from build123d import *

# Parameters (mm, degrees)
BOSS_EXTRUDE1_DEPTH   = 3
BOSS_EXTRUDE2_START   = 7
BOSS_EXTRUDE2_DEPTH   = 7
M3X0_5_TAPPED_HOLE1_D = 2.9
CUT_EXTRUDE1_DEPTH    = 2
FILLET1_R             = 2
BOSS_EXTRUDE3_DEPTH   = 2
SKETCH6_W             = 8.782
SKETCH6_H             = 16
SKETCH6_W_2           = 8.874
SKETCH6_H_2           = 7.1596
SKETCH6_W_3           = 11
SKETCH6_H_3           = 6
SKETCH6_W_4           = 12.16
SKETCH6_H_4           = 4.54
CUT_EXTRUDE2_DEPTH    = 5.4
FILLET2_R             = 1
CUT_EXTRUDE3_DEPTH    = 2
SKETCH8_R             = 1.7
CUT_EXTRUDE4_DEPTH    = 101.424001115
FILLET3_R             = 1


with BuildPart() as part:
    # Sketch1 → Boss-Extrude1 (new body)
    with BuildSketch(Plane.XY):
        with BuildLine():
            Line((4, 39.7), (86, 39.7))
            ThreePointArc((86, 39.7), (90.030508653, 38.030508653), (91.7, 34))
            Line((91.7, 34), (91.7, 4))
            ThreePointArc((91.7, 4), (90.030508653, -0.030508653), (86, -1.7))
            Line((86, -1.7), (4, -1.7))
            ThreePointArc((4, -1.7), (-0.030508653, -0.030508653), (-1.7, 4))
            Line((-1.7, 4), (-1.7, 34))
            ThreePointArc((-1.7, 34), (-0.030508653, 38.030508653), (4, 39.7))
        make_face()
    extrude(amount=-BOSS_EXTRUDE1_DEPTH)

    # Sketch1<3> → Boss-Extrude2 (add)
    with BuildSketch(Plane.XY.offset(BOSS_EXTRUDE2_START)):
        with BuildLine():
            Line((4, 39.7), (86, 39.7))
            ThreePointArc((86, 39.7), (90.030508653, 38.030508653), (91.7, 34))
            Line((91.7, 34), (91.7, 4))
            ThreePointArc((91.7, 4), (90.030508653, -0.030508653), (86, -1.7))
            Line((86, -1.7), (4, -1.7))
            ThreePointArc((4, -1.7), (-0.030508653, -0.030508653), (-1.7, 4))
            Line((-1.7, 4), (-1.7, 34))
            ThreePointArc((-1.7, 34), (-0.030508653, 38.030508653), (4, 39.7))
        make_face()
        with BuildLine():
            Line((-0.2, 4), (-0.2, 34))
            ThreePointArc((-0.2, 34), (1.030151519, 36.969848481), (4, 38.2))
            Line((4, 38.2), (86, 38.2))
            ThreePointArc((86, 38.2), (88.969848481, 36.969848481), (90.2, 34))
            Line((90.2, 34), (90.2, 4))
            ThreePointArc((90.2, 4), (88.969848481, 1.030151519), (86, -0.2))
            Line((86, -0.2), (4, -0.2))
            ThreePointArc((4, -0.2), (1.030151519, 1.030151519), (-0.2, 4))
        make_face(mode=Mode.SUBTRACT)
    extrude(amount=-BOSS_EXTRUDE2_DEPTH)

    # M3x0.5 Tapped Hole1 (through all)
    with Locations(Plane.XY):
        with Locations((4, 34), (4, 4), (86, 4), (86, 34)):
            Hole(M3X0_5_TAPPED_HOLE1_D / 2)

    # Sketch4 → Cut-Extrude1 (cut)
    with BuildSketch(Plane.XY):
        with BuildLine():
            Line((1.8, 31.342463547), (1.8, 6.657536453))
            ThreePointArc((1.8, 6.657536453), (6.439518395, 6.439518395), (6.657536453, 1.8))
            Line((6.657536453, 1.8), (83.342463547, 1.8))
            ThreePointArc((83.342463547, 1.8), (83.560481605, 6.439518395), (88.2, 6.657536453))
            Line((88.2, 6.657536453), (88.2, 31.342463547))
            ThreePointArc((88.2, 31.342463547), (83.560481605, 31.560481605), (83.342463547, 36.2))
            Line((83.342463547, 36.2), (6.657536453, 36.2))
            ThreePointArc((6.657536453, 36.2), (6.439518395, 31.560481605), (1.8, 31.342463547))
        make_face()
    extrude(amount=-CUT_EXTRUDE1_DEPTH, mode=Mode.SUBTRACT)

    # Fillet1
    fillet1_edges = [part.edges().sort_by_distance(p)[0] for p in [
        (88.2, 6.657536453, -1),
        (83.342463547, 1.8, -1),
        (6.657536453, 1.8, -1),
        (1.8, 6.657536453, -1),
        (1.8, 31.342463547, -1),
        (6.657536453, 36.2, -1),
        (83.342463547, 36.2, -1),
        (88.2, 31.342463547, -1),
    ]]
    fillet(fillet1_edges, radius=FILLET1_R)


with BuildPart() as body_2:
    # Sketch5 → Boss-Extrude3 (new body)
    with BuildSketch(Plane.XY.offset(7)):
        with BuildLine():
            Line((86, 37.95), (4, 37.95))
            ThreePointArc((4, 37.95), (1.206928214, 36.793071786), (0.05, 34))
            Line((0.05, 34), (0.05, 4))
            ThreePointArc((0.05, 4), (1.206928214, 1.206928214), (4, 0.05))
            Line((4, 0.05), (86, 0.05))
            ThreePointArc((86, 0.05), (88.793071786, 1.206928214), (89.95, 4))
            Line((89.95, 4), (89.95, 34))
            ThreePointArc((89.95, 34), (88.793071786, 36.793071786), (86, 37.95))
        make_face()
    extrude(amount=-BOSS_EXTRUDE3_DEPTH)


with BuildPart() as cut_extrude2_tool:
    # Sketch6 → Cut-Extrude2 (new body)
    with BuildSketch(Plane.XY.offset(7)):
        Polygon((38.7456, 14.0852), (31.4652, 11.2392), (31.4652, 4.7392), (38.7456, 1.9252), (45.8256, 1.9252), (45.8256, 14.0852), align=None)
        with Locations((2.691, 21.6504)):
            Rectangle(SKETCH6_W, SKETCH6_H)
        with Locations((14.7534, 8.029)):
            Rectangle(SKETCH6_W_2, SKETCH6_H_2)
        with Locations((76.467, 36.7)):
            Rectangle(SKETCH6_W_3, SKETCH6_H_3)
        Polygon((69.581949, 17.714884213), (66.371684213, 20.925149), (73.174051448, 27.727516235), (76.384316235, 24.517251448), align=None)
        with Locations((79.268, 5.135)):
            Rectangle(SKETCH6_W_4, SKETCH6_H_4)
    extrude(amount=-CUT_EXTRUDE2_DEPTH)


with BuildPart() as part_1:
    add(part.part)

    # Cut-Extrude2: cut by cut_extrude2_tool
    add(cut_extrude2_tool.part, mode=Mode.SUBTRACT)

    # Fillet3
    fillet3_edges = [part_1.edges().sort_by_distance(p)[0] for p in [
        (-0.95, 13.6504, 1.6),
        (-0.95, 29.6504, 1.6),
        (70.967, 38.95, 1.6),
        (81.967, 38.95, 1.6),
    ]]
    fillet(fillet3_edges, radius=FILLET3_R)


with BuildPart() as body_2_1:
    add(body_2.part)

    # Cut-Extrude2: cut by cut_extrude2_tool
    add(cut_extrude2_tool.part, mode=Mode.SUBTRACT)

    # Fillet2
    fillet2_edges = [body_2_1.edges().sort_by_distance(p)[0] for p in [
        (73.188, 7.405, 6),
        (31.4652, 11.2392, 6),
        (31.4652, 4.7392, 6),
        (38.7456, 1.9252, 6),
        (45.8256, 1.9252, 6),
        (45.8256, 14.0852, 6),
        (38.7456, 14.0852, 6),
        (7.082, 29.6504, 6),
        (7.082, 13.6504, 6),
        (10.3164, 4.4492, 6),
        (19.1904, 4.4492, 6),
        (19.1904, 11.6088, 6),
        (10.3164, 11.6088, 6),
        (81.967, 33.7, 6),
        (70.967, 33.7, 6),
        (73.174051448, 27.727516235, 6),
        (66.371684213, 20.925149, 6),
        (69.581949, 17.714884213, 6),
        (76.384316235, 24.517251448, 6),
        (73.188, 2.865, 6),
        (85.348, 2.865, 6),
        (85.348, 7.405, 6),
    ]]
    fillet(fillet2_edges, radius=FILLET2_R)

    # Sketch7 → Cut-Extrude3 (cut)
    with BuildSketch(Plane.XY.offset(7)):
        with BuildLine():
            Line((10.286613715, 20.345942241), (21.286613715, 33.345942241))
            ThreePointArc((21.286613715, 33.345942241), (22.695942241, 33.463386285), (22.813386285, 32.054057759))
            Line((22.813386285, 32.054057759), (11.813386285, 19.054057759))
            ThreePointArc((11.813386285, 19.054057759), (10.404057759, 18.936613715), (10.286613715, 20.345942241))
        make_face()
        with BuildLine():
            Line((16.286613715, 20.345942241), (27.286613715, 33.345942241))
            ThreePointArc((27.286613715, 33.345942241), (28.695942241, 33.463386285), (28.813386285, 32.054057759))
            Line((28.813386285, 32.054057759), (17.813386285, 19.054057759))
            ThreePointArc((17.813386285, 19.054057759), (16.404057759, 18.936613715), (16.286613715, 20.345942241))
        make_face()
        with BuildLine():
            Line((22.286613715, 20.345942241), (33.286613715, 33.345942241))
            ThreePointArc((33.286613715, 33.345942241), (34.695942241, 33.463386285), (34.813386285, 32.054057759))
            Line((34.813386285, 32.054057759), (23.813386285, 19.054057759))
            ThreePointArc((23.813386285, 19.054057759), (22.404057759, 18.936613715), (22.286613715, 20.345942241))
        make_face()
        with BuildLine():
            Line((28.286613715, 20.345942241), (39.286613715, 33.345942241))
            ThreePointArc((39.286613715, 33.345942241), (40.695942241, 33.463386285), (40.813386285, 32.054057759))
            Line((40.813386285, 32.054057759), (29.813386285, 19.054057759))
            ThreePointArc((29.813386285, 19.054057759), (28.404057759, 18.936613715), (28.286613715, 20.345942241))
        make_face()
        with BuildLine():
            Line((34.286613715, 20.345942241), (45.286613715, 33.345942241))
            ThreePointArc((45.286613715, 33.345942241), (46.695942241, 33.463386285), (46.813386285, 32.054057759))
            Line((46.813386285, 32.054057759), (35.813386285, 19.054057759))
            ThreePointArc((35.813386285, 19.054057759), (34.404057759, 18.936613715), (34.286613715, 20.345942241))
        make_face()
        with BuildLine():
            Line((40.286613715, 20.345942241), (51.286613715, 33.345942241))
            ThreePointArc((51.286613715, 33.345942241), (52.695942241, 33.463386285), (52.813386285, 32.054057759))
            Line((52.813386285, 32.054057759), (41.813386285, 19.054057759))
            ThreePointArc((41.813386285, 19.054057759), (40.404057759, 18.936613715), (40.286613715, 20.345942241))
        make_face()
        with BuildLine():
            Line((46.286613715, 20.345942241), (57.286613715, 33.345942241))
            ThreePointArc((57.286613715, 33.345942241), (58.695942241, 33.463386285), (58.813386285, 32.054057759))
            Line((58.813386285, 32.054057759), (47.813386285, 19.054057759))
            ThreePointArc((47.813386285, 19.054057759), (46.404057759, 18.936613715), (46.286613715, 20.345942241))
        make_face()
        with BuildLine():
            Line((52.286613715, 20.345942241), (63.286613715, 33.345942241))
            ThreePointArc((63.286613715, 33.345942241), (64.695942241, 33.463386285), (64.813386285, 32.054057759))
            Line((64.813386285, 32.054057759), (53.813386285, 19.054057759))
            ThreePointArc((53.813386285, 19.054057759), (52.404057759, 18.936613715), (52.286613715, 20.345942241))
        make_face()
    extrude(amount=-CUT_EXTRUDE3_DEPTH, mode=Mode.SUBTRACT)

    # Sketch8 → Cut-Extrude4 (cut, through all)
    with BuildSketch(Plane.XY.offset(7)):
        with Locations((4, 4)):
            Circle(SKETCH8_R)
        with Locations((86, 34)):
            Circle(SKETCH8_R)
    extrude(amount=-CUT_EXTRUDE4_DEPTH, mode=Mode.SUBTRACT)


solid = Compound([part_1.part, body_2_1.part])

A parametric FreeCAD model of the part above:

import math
import FreeCAD as App
import Part
import Sketcher

V = App.Vector
Q = App.Units.Quantity


def edges_at(feature, points):
    """Names of the edges that pass closest to the given points."""
    edges = feature.Shape.Edges
    near = lambda p: min(range(len(edges)), key=lambda i: edges[i].distToShape(Part.Vertex(*p))[0])
    return sorted({f"Edge{near(p) + 1}" for p in points})

doc = App.newDocument("Part")
params = doc.addObject("Spreadsheet::Sheet", "Params")
for row, (alias, value) in enumerate([
    ("sketch1_radius", "5.7 mm"),
    ("sketch1_width", "82 mm"),
    ("sketch1_height", "30 mm"),
    ("pad1_length", "3 mm"),
    ("sketch2_radius", "5.7 mm"),
    ("sketch2_radius2", "4.2 mm"),
    ("sketch2_width", "82 mm"),
    ("sketch2_height", "30 mm"),
    ("pad2_length", "7 mm"),
    ("sketch3_diameter", "2.9 mm"),
    ("hole_diameter", "2.9 mm"),
    ("sketch4_radius", "3.45 mm"),
    ("pocket1_length", "2 mm"),
    ("fillet_radius", "2 mm"),
    ("sketch5_width", "82 mm"),
    ("sketch5_height", "30 mm"),
    ("sketch5_radius", "3.95 mm"),
    ("pad3_length", "2 mm"),
    ("sketch6_width", "11 mm"),
    ("sketch6_height", "16 mm"),
    ("sketch6_height2", "6 mm"),
    ("sketch6_height3", "6.5 mm"),
    ("sketch6_width2", "7.08 mm"),
    ("pad4_length", "5.4 mm"),
    ("fillet2_radius", "1 mm"),
    ("fillet3_radius", "1 mm"),
    ("sketch7_radius", "1 mm"),
    ("pocket2_length", "2 mm"),
    ("sketch8_diameter", "3.4 mm"),
], start=1):
    params.set(f"A{row}", alias)
    params.set(f"B{row}", "=" + value)
    params.setAlias(f"B{row}", alias)

body = doc.addObject("PartDesign::Body", "Body")

# Sketch on XY plane
sketch1 = body.newObject("Sketcher::SketchObject", "Sketch")
sketch1.AttachmentSupport = (doc.getObject("XY_Plane"), [""])
sketch1.MapMode = "FlatFace"
sketch1.addGeometry([
    Part.LineSegment(V(86, 40, 0), V(4, 40, 0)),  # 0
    Part.ArcOfCircle(Part.Circle(V(4, 34, 0), V(0, 0, 1), 6), math.radians(90), math.radians(180)),  # 1
    Part.LineSegment(V(-2, 34, 0), V(-2, 4, 0)),  # 2
    Part.ArcOfCircle(Part.Circle(V(4, 4, 0), V(0, 0, 1), 6), math.radians(180), math.radians(270)),  # 3
    Part.LineSegment(V(4, -2, 0), V(86, -2, 0)),  # 4
    Part.ArcOfCircle(Part.Circle(V(86, 4, 0), V(0, 0, 1), 6), math.radians(-90), math.radians(0)),  # 5
    Part.LineSegment(V(92, 4, 0), V(92, 34, 0)),  # 6
    Part.ArcOfCircle(Part.Circle(V(86, 34, 0), V(0, 0, 1), 6), math.radians(0), math.radians(90)),  # 7
], False)
sketch1.addConstraint([
    Sketcher.Constraint("Tangent", 0, 2, 1, 1),
    Sketcher.Constraint("Tangent", 1, 2, 2, 1),
    Sketcher.Constraint("Tangent", 2, 2, 3, 1),
    Sketcher.Constraint("Tangent", 3, 2, 4, 1),
    Sketcher.Constraint("Tangent", 4, 2, 5, 1),
    Sketcher.Constraint("Tangent", 5, 2, 6, 1),
    Sketcher.Constraint("Tangent", 6, 2, 7, 1),
    Sketcher.Constraint("Tangent", 7, 2, 0, 1),
    Sketcher.Constraint("Horizontal", 0),
    Sketcher.Constraint("Vertical", 2),
    Sketcher.Constraint("Horizontal", 4),
    Sketcher.Constraint("Vertical", 6),
    Sketcher.Constraint("Equal", 1, 3),
    Sketcher.Constraint("Equal", 3, 5),
    Sketcher.Constraint("Equal", 5, 7),
    Sketcher.Constraint("Radius", 1, Q("5.7 mm")),
    Sketcher.Constraint("DistanceX", 0, 2, 0, 1, Q("82 mm")),
    Sketcher.Constraint("DistanceY", 2, 2, 2, 1, Q("30 mm")),
    Sketcher.Constraint("DistanceX", -1, 1, 1, 3, Q("4 mm")),
    Sketcher.Constraint("DistanceY", -1, 1, 1, 3, Q("34 mm")),
])
sketch1.setExpression("Constraints[15]", "Params.sketch1_radius")
sketch1.setExpression("Constraints[16]", "Params.sketch1_width")
sketch1.setExpression("Constraints[17]", "Params.sketch1_height")
pad1 = body.newObject("PartDesign::Pad", "Pad")
pad1.Profile = sketch1
pad1.setExpression("Length", "Params.pad1_length")
pad1.Reversed = True

# Sketch on XY plane
sketch2 = body.newObject("Sketcher::SketchObject", "Sketch001")
sketch2.AttachmentSupport = (doc.getObject("XY_Plane"), [""])
sketch2.MapMode = "FlatFace"
sketch2.AttachmentOffset = App.Placement(V(0, 0, 7), App.Rotation())
sketch2.addGeometry([
    Part.LineSegment(V(86, 39.7, 0), V(4, 39.7, 0)),  # 0
    Part.ArcOfCircle(Part.Circle(V(4, 34, 0), V(0, 0, 1), 5.7), math.radians(90), math.radians(180)),  # 1
    Part.LineSegment(V(-1.7, 34, 0), V(-1.7, 4, 0)),  # 2
    Part.ArcOfCircle(Part.Circle(V(4, 4, 0), V(0, 0, 1), 5.7), math.radians(180), math.radians(270)),  # 3
    Part.LineSegment(V(4, -1.7, 0), V(86, -1.7, 0)),  # 4
    Part.ArcOfCircle(Part.Circle(V(86, 4, 0), V(0, 0, 1), 5.7), math.radians(-90), math.radians(0)),  # 5
    Part.LineSegment(V(91.7, 4, 0), V(91.7, 34, 0)),  # 6
    Part.ArcOfCircle(Part.Circle(V(86, 34, 0), V(0, 0, 1), 5.7), math.radians(0), math.radians(90)),  # 7
    Part.LineSegment(V(-0.2, 4, 0), V(-0.2, 34, 0)),  # 8
    Part.ArcOfCircle(Part.Circle(V(4, 34, 0), V(0, 0, 1), 4.2), math.radians(90), math.radians(180)),  # 9
    Part.LineSegment(V(4, 38.2, 0), V(86, 38.2, 0)),  # 10
    Part.ArcOfCircle(Part.Circle(V(86, 34, 0), V(0, 0, 1), 4.2), math.radians(0), math.radians(90)),  # 11
    Part.LineSegment(V(90.2, 34, 0), V(90.2, 4, 0)),  # 12
    Part.ArcOfCircle(Part.Circle(V(86, 4, 0), V(0, 0, 1), 4.2), math.radians(-90), math.radians(0)),  # 13
    Part.LineSegment(V(86, -0.2, 0), V(4, -0.2, 0)),  # 14
    Part.ArcOfCircle(Part.Circle(V(4, 4, 0), V(0, 0, 1), 4.2), math.radians(180), math.radians(270)),  # 15
], False)
sketch2.addConstraint([
    Sketcher.Constraint("Tangent", 0, 2, 1, 1),
    Sketcher.Constraint("Tangent", 1, 2, 2, 1),
    Sketcher.Constraint("Tangent", 2, 2, 3, 1),
    Sketcher.Constraint("Tangent", 3, 2, 4, 1),
    Sketcher.Constraint("Tangent", 4, 2, 5, 1),
    Sketcher.Constraint("Tangent", 5, 2, 6, 1),
    Sketcher.Constraint("Tangent", 6, 2, 7, 1),
    Sketcher.Constraint("Tangent", 7, 2, 0, 1),
    Sketcher.Constraint("Tangent", 8, 2, 9, 2),
    Sketcher.Constraint("Tangent", 9, 1, 10, 1),
    Sketcher.Constraint("Tangent", 10, 2, 11, 2),
    Sketcher.Constraint("Tangent", 11, 1, 12, 1),
    Sketcher.Constraint("Tangent", 12, 2, 13, 2),
    Sketcher.Constraint("Tangent", 13, 1, 14, 1),
    Sketcher.Constraint("Tangent", 14, 2, 15, 2),
    Sketcher.Constraint("Tangent", 15, 1, 8, 1),
    Sketcher.Constraint("Horizontal", 0),
    Sketcher.Constraint("Vertical", 2),
    Sketcher.Constraint("Horizontal", 4),
    Sketcher.Constraint("Vertical", 6),
    Sketcher.Constraint("Vertical", 8),
    Sketcher.Constraint("Horizontal", 10),
    Sketcher.Constraint("Vertical", 12),
    Sketcher.Constraint("Horizontal", 14),
    Sketcher.Constraint("Coincident", 9, 3, 1, 3),
    Sketcher.Constraint("Coincident", 11, 3, 7, 3),
    Sketcher.Constraint("Coincident", 13, 3, 5, 3),
    Sketcher.Constraint("Equal", 1, 3),
    Sketcher.Constraint("Equal", 3, 5),
    Sketcher.Constraint("Equal", 5, 7),
    Sketcher.Constraint("Equal", 13, 15),
    Sketcher.Constraint("Radius", 1, Q("5.7 mm")),
    Sketcher.Constraint("Radius", 9, Q("4.2 mm")),
    Sketcher.Constraint("DistanceX", 0, 2, 0, 1, Q("82 mm")),
    Sketcher.Constraint("DistanceY", 2, 2, 2, 1, Q("30 mm")),
    Sketcher.Constraint("DistanceX", -1, 1, 1, 3, Q("4 mm")),
    Sketcher.Constraint("DistanceY", -1, 1, 1, 3, Q("34 mm")),
])
sketch2.setExpression("Constraints[31]", "Params.sketch2_radius")
sketch2.setExpression("Constraints[32]", "Params.sketch2_radius2")
sketch2.setExpression("Constraints[33]", "Params.sketch2_width")
sketch2.setExpression("Constraints[34]", "Params.sketch2_height")
pad2 = body.newObject("PartDesign::Pad", "Pad001")
pad2.Profile = sketch2
pad2.setExpression("Length", "Params.pad2_length")
pad2.Reversed = True

# Sketch on XY plane
sketch3 = body.newObject("Sketcher::SketchObject", "Sketch002")
sketch3.AttachmentSupport = (doc.getObject("XY_Plane"), [""])
sketch3.MapMode = "FlatFace"
sketch3.addGeometry([
    Part.Circle(V(4, 34, 0), V(0, 0, 1), 1.4),
    Part.Circle(V(4, 4, 0), V(0, 0, 1), 1.4),
    Part.Circle(V(86, 4, 0), V(0, 0, 1), 1.4),
    Part.Circle(V(86, 34, 0), V(0, 0, 1), 1.4),
], False)
sketch3.addConstraint([
    Sketcher.Constraint("Equal", 0, 1),
    Sketcher.Constraint("Equal", 1, 2),
    Sketcher.Constraint("Equal", 2, 3),
    Sketcher.Constraint("Horizontal", 1, 3, 2, 3),
    Sketcher.Constraint("Horizontal", 0, 3, 3, 3),
    Sketcher.Constraint("Vertical", 0, 3, 1, 3),
    Sketcher.Constraint("Vertical", 2, 3, 3, 3),
    Sketcher.Constraint("Diameter", 0, Q("2.9 mm")),
    Sketcher.Constraint("DistanceX", -1, 1, 0, 3, Q("4 mm")),
    Sketcher.Constraint("DistanceY", -1, 1, 0, 3, Q("34 mm")),
    Sketcher.Constraint("DistanceY", -1, 1, 1, 3, Q("4 mm")),
    Sketcher.Constraint("DistanceX", -1, 1, 2, 3, Q("86 mm")),
])
sketch3.setExpression("Constraints[7]", "Params.sketch3_diameter")
doc.recompute()
hole = body.newObject("PartDesign::Hole", "Hole")
hole.Profile = sketch3
hole.ThreadType = "None"
hole.setExpression("Diameter", "Params.hole_diameter")
hole.DepthType = "ThroughAll"

# Sketch on XY plane
sketch4 = body.newObject("Sketcher::SketchObject", "Sketch003")
sketch4.AttachmentSupport = (doc.getObject("XY_Plane"), [""])
sketch4.MapMode = "FlatFace"
sketch4.addGeometry([
    Part.LineSegment(V(1.8, 31.3, 0), V(1.8, 6.7, 0)),  # 0
    Part.ArcOfCircle(Part.Circle(V(4, 4, 0), V(0, 0, 1), 3.5), math.radians(-40), math.radians(130)),  # 1
    Part.LineSegment(V(6.7, 1.8, 0), V(83.3, 1.8, 0)),  # 2
    Part.ArcOfCircle(Part.Circle(V(86, 4, 0), V(0, 0, 1), 3.5), math.radians(50), math.radians(220)),  # 3
    Part.LineSegment(V(88.2, 6.7, 0), V(88.2, 31.3, 0)),  # 4
    Part.ArcOfCircle(Part.Circle(V(86, 34, 0), V(0, 0, 1), 3.5), math.radians(140), math.radians(310)),  # 5
    Part.LineSegment(V(83.3, 36.2, 0), V(6.7, 36.2, 0)),  # 6
    Part.ArcOfCircle(Part.Circle(V(4, 34, 0), V(0, 0, 1), 3.5), math.radians(-130), math.radians(40)),  # 7
], False)
sketch4.addConstraint([
    Sketcher.Constraint("Coincident", 0, 2, 1, 2),
    Sketcher.Constraint("Coincident", 1, 1, 2, 1),
    Sketcher.Constraint("Coincident", 2, 2, 3, 2),
    Sketcher.Constraint("Coincident", 3, 1, 4, 1),
    Sketcher.Constraint("Coincident", 4, 2, 5, 2),
    Sketcher.Constraint("Coincident", 5, 1, 6, 1),
    Sketcher.Constraint("Coincident", 6, 2, 7, 2),
    Sketcher.Constraint("Coincident", 7, 1, 0, 1),
    Sketcher.Constraint("Vertical", 0),
    Sketcher.Constraint("Horizontal", 2),
    Sketcher.Constraint("Vertical", 4),
    Sketcher.Constraint("Horizontal", 6),
    Sketcher.Constraint("Equal", 1, 3),
    Sketcher.Constraint("Equal", 3, 5),
    Sketcher.Constraint("Equal", 5, 7),
    Sketcher.Constraint("Horizontal", 1, 3, 3, 3),
    Sketcher.Constraint("Horizontal", 5, 3, 7, 3),
    Sketcher.Constraint("Horizontal", 0, 2, 3, 1),
    Sketcher.Constraint("Horizontal", 4, 2, 7, 1),
    Sketcher.Constraint("Vertical", 3, 3, 5, 3),
    Sketcher.Constraint("Vertical", 2, 2, 5, 1),
    Sketcher.Constraint("Radius", 1, Q("3.45 mm")),
    Sketcher.Constraint("DistanceX", -1, 1, 1, 3, Q("4 mm")),
    Sketcher.Constraint("DistanceY", -1, 1, 1, 3, Q("4 mm")),
    Sketcher.Constraint("DistanceX", -1, 1, 3, 3, Q("86 mm")),
    Sketcher.Constraint("DistanceY", -1, 1, 5, 3, Q("34 mm")),
    Sketcher.Constraint("DistanceX", -1, 1, 0, 2, Q("1.8 mm")),
    Sketcher.Constraint("DistanceY", -1, 1, 1, 1, Q("1.8 mm")),
])
sketch4.setExpression("Constraints[21]", "Params.sketch4_radius")
pocket1 = body.newObject("PartDesign::Pocket", "Pocket")
pocket1.Profile = sketch4
pocket1.setExpression("Length", "Params.pocket1_length")
doc.recompute()

fillet = body.newObject("PartDesign::Fillet", "Fillet")
fillet.Base = (pocket1, edges_at(pocket1, [
    (88.2, 6.658, -1),
    (83.342, 1.8, -1),
    (6.658, 1.8, -1),
    (1.8, 6.658, -1),
    (1.8, 31.342, -1),
    (6.658, 36.2, -1),
    (83.342, 36.2, -1),
    (88.2, 31.342, -1),
]))
fillet.setExpression("Radius", "Params.fillet_radius")
body2 = doc.addObject("PartDesign::Body", "Body001")

# Sketch on XY plane
sketch5 = body2.newObject("Sketcher::SketchObject", "Sketch004")
sketch5.AttachmentSupport = (doc.getObject("XY_Plane001"), [""])
sketch5.MapMode = "FlatFace"
sketch5.AttachmentOffset = App.Placement(V(0, 0, 7), App.Rotation())
sketch5.addGeometry([
    Part.LineSegment(V(86, 38, 0), V(4, 38, 0)),  # 0
    Part.ArcOfCircle(Part.Circle(V(4, 34, 0), V(0, 0, 1), 3.9), math.radians(90), math.radians(180)),  # 1
    Part.LineSegment(V(0.1, 34, 0), V(0.1, 4, 0)),  # 2
    Part.ArcOfCircle(Part.Circle(V(4, 4, 0), V(0, 0, 1), 3.9), math.radians(180), math.radians(270)),  # 3
    Part.LineSegment(V(4, 0.1, 0), V(86, 0.1, 0)),  # 4
    Part.ArcOfCircle(Part.Circle(V(86, 4, 0), V(0, 0, 1), 3.9), math.radians(-90), math.radians(0)),  # 5
    Part.LineSegment(V(90, 4, 0), V(90, 34, 0)),  # 6
    Part.ArcOfCircle(Part.Circle(V(86, 34, 0), V(0, 0, 1), 3.9), math.radians(0), math.radians(90)),  # 7
], False)
sketch5.addConstraint([
    Sketcher.Constraint("Tangent", 0, 2, 1, 1),
    Sketcher.Constraint("Tangent", 1, 2, 2, 1),
    Sketcher.Constraint("Tangent", 2, 2, 3, 1),
    Sketcher.Constraint("Tangent", 3, 2, 4, 1),
    Sketcher.Constraint("Tangent", 4, 2, 5, 1),
    Sketcher.Constraint("Tangent", 5, 2, 6, 1),
    Sketcher.Constraint("Tangent", 6, 2, 7, 1),
    Sketcher.Constraint("Tangent", 7, 2, 0, 1),
    Sketcher.Constraint("Horizontal", 0),
    Sketcher.Constraint("Vertical", 2),
    Sketcher.Constraint("Horizontal", 4),
    Sketcher.Constraint("Vertical", 6),
    Sketcher.Constraint("Equal", 1, 3),
    Sketcher.Constraint("Equal", 3, 5),
    Sketcher.Constraint("Equal", 5, 7),
    Sketcher.Constraint("DistanceX", 0, 2, 0, 1, Q("82 mm")),
    Sketcher.Constraint("DistanceY", 2, 2, 2, 1, Q("30 mm")),
    Sketcher.Constraint("Radius", 1, Q("3.95 mm")),
    Sketcher.Constraint("DistanceX", -1, 1, 1, 3, Q("4 mm")),
    Sketcher.Constraint("DistanceY", -1, 1, 1, 3, Q("34 mm")),
])
sketch5.setExpression("Constraints[15]", "Params.sketch5_width")
sketch5.setExpression("Constraints[16]", "Params.sketch5_height")
sketch5.setExpression("Constraints[17]", "Params.sketch5_radius")
pad3 = body2.newObject("PartDesign::Pad", "Pad002")
pad3.Profile = sketch5
pad3.setExpression("Length", "Params.pad3_length")
pad3.Reversed = True
body3 = doc.addObject("PartDesign::Body", "Body002")
body3.AllowCompound = True

# Sketch on XY plane
sketch6 = body3.newObject("Sketcher::SketchObject", "Sketch005")
sketch6.AttachmentSupport = (doc.getObject("XY_Plane002"), [""])
sketch6.MapMode = "FlatFace"
sketch6.AttachmentOffset = App.Placement(V(0, 0, 7), App.Rotation())
sketch6.addGeometry([
    Part.LineSegment(V(38.7, 14.1, 0), V(31.5, 11.2, 0)),  # 0
    Part.LineSegment(V(31.5, 11.2, 0), V(31.5, 4.7, 0)),  # 1
    Part.LineSegment(V(31.5, 4.7, 0), V(38.7, 1.9, 0)),  # 2
    Part.LineSegment(V(38.7, 1.9, 0), V(45.8, 1.9, 0)),  # 3
    Part.LineSegment(V(45.8, 1.9, 0), V(45.8, 14.1, 0)),  # 4
    Part.LineSegment(V(45.8, 14.1, 0), V(38.7, 14.1, 0)),  # 5
    Part.LineSegment(V(-1.7, 29.7, 0), V(-1.7, 13.7, 0)),  # 6
    Part.LineSegment(V(-1.7, 13.7, 0), V(7.1, 13.7, 0)),  # 7
    Part.LineSegment(V(7.1, 13.7, 0), V(7.1, 29.7, 0)),  # 8
    Part.LineSegment(V(7.1, 29.7, 0), V(-1.7, 29.7, 0)),  # 9
    Part.LineSegment(V(10.3, 11.6, 0), V(10.3, 4.4, 0)),  # 10
    Part.LineSegment(V(10.3, 4.4, 0), V(19.2, 4.4, 0)),  # 11
    Part.LineSegment(V(19.2, 4.4, 0), V(19.2, 11.6, 0)),  # 12
    Part.LineSegment(V(19.2, 11.6, 0), V(10.3, 11.6, 0)),  # 13
    Part.LineSegment(V(71, 39.7, 0), V(71, 33.7, 0)),  # 14
    Part.LineSegment(V(71, 33.7, 0), V(82, 33.7, 0)),  # 15
    Part.LineSegment(V(82, 33.7, 0), V(82, 39.7, 0)),  # 16
    Part.LineSegment(V(82, 39.7, 0), V(71, 39.7, 0)),  # 17
    Part.LineSegment(V(66.4, 20.9, 0), V(69.6, 17.7, 0)),  # 18
    Part.LineSegment(V(69.6, 17.7, 0), V(76.4, 24.5, 0)),  # 19
    Part.LineSegment(V(76.4, 24.5, 0), V(73.2, 27.7, 0)),  # 20
    Part.LineSegment(V(73.2, 27.7, 0), V(66.4, 20.9, 0)),  # 21
    Part.LineSegment(V(73.2, 7.4, 0), V(73.2, 2.9, 0)),  # 22
    Part.LineSegment(V(73.2, 2.9, 0), V(85.3, 2.9, 0)),  # 23
    Part.LineSegment(V(85.3, 2.9, 0), V(85.3, 7.4, 0)),  # 24
    Part.LineSegment(V(85.3, 7.4, 0), V(73.2, 7.4, 0)),  # 25
], False)
sketch6.addConstraint([
    Sketcher.Constraint("Coincident", 0, 2, 1, 1),
    Sketcher.Constraint("Coincident", 1, 2, 2, 1),
    Sketcher.Constraint("Coincident", 2, 2, 3, 1),
    Sketcher.Constraint("Coincident", 3, 2, 4, 1),
    Sketcher.Constraint("Coincident", 4, 2, 5, 1),
    Sketcher.Constraint("Coincident", 5, 2, 0, 1),
    Sketcher.Constraint("Coincident", 6, 2, 7, 1),
    Sketcher.Constraint("Coincident", 7, 2, 8, 1),
    Sketcher.Constraint("Coincident", 8, 2, 9, 1),
    Sketcher.Constraint("Coincident", 9, 2, 6, 1),
    Sketcher.Constraint("Coincident", 10, 2, 11, 1),
    Sketcher.Constraint("Coincident", 11, 2, 12, 1),
    Sketcher.Constraint("Coincident", 12, 2, 13, 1),
    Sketcher.Constraint("Coincident", 13, 2, 10, 1),
    Sketcher.Constraint("Coincident", 14, 2, 15, 1),
    Sketcher.Constraint("Coincident", 15, 2, 16, 1),
    Sketcher.Constraint("Coincident", 16, 2, 17, 1),
    Sketcher.Constraint("Coincident", 17, 2, 14, 1),
    Sketcher.Constraint("Coincident", 18, 2, 19, 1),
    Sketcher.Constraint("Coincident", 19, 2, 20, 1),
    Sketcher.Constraint("Coincident", 20, 2, 21, 1),
    Sketcher.Constraint("Coincident", 21, 2, 18, 1),
    Sketcher.Constraint("Coincident", 22, 2, 23, 1),
    Sketcher.Constraint("Coincident", 23, 2, 24, 1),
    Sketcher.Constraint("Coincident", 24, 2, 25, 1),
    Sketcher.Constraint("Coincident", 25, 2, 22, 1),
    Sketcher.Constraint("Vertical", 1),
    Sketcher.Constraint("Horizontal", 3),
    Sketcher.Constraint("Vertical", 4),
    Sketcher.Constraint("Horizontal", 5),
    Sketcher.Constraint("Vertical", 6),
    Sketcher.Constraint("Horizontal", 7),
    Sketcher.Constraint("Vertical", 8),
    Sketcher.Constraint("Horizontal", 9),
    Sketcher.Constraint("Vertical", 10),
    Sketcher.Constraint("Horizontal", 11),
    Sketcher.Constraint("Vertical", 12),
    Sketcher.Constraint("Horizontal", 13),
    Sketcher.Constraint("Vertical", 14),
    Sketcher.Constraint("Horizontal", 15),
    Sketcher.Constraint("Vertical", 16),
    Sketcher.Constraint("Horizontal", 17),
    Sketcher.Constraint("Vertical", 22),
    Sketcher.Constraint("Horizontal", 23),
    Sketcher.Constraint("Vertical", 24),
    Sketcher.Constraint("Horizontal", 25),
    Sketcher.Constraint("Perpendicular", 18, 19),
    Sketcher.Constraint("Perpendicular", 19, 20),
    Sketcher.Constraint("Perpendicular", 20, 21),
    Sketcher.Constraint("Vertical", 2, 2, 5, 2),
    Sketcher.Constraint("Equal", 25, 4),
    Sketcher.Constraint("DistanceX", 15, 1, 15, 2, Q("11 mm")),
    Sketcher.Constraint("DistanceY", 6, 2, 6, 1, Q("16 mm")),
    Sketcher.Constraint("DistanceY", 14, 2, 14, 1, Q("6 mm")),
    Sketcher.Constraint("Angle", 18, Q("-45 deg")),
    Sketcher.Constraint("DistanceY", 1, 2, 1, 1, Q("6.5 mm")),
    Sketcher.Constraint("DistanceX", 3, 1, 3, 2, Q("7.08 mm")),
    Sketcher.Constraint("DistanceX", 23, 1, 23, 2, Q("12.16 mm")),
    Sketcher.Constraint("DistanceY", 22, 2, 22, 1, Q("4.54 mm")),
    Sketcher.Constraint("DistanceX", 6, 2, -1, 1, Q("1.7 mm")),
    Sketcher.Constraint("DistanceY", -1, 1, 14, 2, Q("33.7 mm")),
    Sketcher.Constraint("Distance", 18, Q("4.54 mm")),
    Sketcher.Constraint("Distance", 19, Q("9.62 mm")),
    Sketcher.Constraint("DistanceX", 7, 1, 7, 2, Q("8.782 mm")),
    Sketcher.Constraint("DistanceX", 11, 1, 11, 2, Q("8.874 mm")),
    Sketcher.Constraint("DistanceY", 10, 2, 1, 2, Q("0.29 mm")),
    Sketcher.Constraint("DistanceY", 10, 2, 10, 1, Q("7.1596 mm")),
    Sketcher.Constraint("DistanceX", -1, 1, 14, 2, Q("70.967 mm")),
    Sketcher.Constraint("DistanceX", -1, 1, 22, 2, Q("73.188 mm")),
    Sketcher.Constraint("DistanceY", -1, 1, 22, 2, Q("2.865 mm")),
    Sketcher.Constraint("DistanceY", 2, 2, 1, 2, Q("2.814 mm")),
    Sketcher.Constraint("Distance", 0, Q("7.816901 mm")),
    Sketcher.Constraint("DistanceX", -1, 1, 0, 2, Q("31.4652 mm")),
    Sketcher.Constraint("DistanceY", -1, 1, 0, 2, Q("11.2392 mm")),
    Sketcher.Constraint("DistanceY", -1, 1, 6, 2, Q("13.6504 mm")),
    Sketcher.Constraint("DistanceX", -1, 1, 10, 2, Q("10.3164 mm")),
    Sketcher.Constraint("DistanceX", -1, 1, 18, 2, Q("69.581949 mm")),
    Sketcher.Constraint("DistanceY", -1, 1, 19, 2, Q("24.517251 mm")),
])
sketch6.setExpression("Constraints[51]", "Params.sketch6_width")
sketch6.setExpression("Constraints[52]", "Params.sketch6_height")
sketch6.setExpression("Constraints[53]", "Params.sketch6_height2")
sketch6.setExpression("Constraints[55]", "Params.sketch6_height3")
sketch6.setExpression("Constraints[56]", "Params.sketch6_width2")
pad4 = body3.newObject("PartDesign::Pad", "Pad003")
pad4.Profile = sketch6
pad4.setExpression("Length", "Params.pad4_length")
pad4.Reversed = True
doc.recompute()

body4 = doc.addObject("PartDesign::Body", "Body003")
body4.BaseFeature = body3
boolean = body.newObject("PartDesign::Boolean", "Boolean")
boolean.Type = "Cut"
boolean.addObjects([body4])
doc.recompute()

fillet2 = body.newObject("PartDesign::Fillet", "Fillet001")
fillet2.Base = (boolean, edges_at(boolean, [
    (-0.95, 13.65, 1.6),
    (-0.95, 29.65, 1.6),
    (70.967, 38.95, 1.6),
    (81.967, 38.95, 1.6),
]))
fillet2.setExpression("Radius", "Params.fillet2_radius")
doc.recompute()

boolean2 = body2.newObject("PartDesign::Boolean", "Boolean001")
boolean2.Type = "Cut"
boolean2.addObjects([body3])
doc.recompute()

fillet3 = body2.newObject("PartDesign::Fillet", "Fillet002")
fillet3.Base = (boolean2, edges_at(boolean2, [
    (73.188, 7.405, 6),
    (31.465, 11.239, 6),
    (31.465, 4.739, 6),
    (38.746, 1.925, 6),
    (45.826, 1.925, 6),
    (45.826, 14.085, 6),
    (38.746, 14.085, 6),
    (7.082, 29.65, 6),
    (7.082, 13.65, 6),
    (10.316, 4.449, 6),
    (19.19, 4.449, 6),
    (19.19, 11.609, 6),
    (10.316, 11.609, 6),
    (81.967, 33.7, 6),
    (70.967, 33.7, 6),
    (73.174, 27.728, 6),
    (66.372, 20.925, 6),
    (69.582, 17.715, 6),
    (76.384, 24.517, 6),
    (73.188, 2.865, 6),
    (85.348, 2.865, 6),
    (85.348, 7.405, 6),
]))
fillet3.setExpression("Radius", "Params.fillet3_radius")

# Sketch on XY plane
sketch7 = body2.newObject("Sketcher::SketchObject", "Sketch006")
sketch7.AttachmentSupport = (doc.getObject("XY_Plane001"), [""])
sketch7.MapMode = "FlatFace"
sketch7.AttachmentOffset = App.Placement(V(0, 0, 7), App.Rotation())
sketch7.addGeometry([
    Part.LineSegment(V(21.3, 33.3, 0), V(10.3, 20.3, 0)),  # 0
    Part.ArcOfCircle(Part.Circle(V(11.1, 19.7, 0), V(0, 0, 1), 1), math.radians(140), math.radians(320)),  # 1
    Part.LineSegment(V(11.8, 19.1, 0), V(22.8, 32.1, 0)),  # 2
    Part.ArcOfCircle(Part.Circle(V(22.1, 32.7, 0), V(0, 0, 1), 1), math.radians(-40), math.radians(140)),  # 3
    Part.LineSegment(V(27.3, 33.3, 0), V(16.3, 20.3, 0)),  # 4
    Part.ArcOfCircle(Part.Circle(V(17.1, 19.7, 0), V(0, 0, 1), 1), math.radians(140), math.radians(320)),  # 5
    Part.LineSegment(V(17.8, 19.1, 0), V(28.8, 32.1, 0)),  # 6
    Part.ArcOfCircle(Part.Circle(V(28.1, 32.7, 0), V(0, 0, 1), 1), math.radians(-40), math.radians(140)),  # 7
    Part.LineSegment(V(33.3, 33.3, 0), V(22.3, 20.3, 0)),  # 8
    Part.ArcOfCircle(Part.Circle(V(23.1, 19.7, 0), V(0, 0, 1), 1), math.radians(140), math.radians(320)),  # 9
    Part.LineSegment(V(23.8, 19.1, 0), V(34.8, 32.1, 0)),  # 10
    Part.ArcOfCircle(Part.Circle(V(34, 32.7, 0), V(0, 0, 1), 1), math.radians(-40), math.radians(140)),  # 11
    Part.LineSegment(V(39.3, 33.3, 0), V(28.3, 20.3, 0)),  # 12
    Part.ArcOfCircle(Part.Circle(V(29.1, 19.7, 0), V(0, 0, 1), 1), math.radians(140), math.radians(320)),  # 13
    Part.LineSegment(V(29.8, 19.1, 0), V(40.8, 32.1, 0)),  # 14
    Part.ArcOfCircle(Part.Circle(V(40, 32.7, 0), V(0, 0, 1), 1), math.radians(-40), math.radians(140)),  # 15
    Part.LineSegment(V(45.3, 33.3, 0), V(34.3, 20.3, 0)),  # 16
    Part.ArcOfCircle(Part.Circle(V(35, 19.7, 0), V(0, 0, 1), 1), math.radians(140), math.radians(320)),  # 17
    Part.LineSegment(V(35.8, 19.1, 0), V(46.8, 32.1, 0)),  # 18
    Part.ArcOfCircle(Part.Circle(V(46, 32.7, 0), V(0, 0, 1), 1), math.radians(-40), math.radians(140)),  # 19
    Part.LineSegment(V(51.3, 33.3, 0), V(40.3, 20.3, 0)),  # 20
    Part.ArcOfCircle(Part.Circle(V(41, 19.7, 0), V(0, 0, 1), 1), math.radians(140), math.radians(320)),  # 21
    Part.LineSegment(V(41.8, 19.1, 0), V(52.8, 32.1, 0)),  # 22
    Part.ArcOfCircle(Part.Circle(V(52, 32.7, 0), V(0, 0, 1), 1), math.radians(-40), math.radians(140)),  # 23
    Part.LineSegment(V(57.3, 33.3, 0), V(46.3, 20.3, 0)),  # 24
    Part.ArcOfCircle(Part.Circle(V(47, 19.7, 0), V(0, 0, 1), 1), math.radians(140), math.radians(320)),  # 25
    Part.LineSegment(V(47.8, 19.1, 0), V(58.8, 32.1, 0)),  # 26
    Part.ArcOfCircle(Part.Circle(V(58, 32.7, 0), V(0, 0, 1), 1), math.radians(-40), math.radians(140)),  # 27
    Part.LineSegment(V(63.3, 33.3, 0), V(52.3, 20.3, 0)),  # 28
    Part.ArcOfCircle(Part.Circle(V(53, 19.7, 0), V(0, 0, 1), 1), math.radians(140), math.radians(320)),  # 29
    Part.LineSegment(V(53.8, 19.1, 0), V(64.8, 32.1, 0)),  # 30
    Part.ArcOfCircle(Part.Circle(V(64, 32.7, 0), V(0, 0, 1), 1), math.radians(-40), math.radians(140)),  # 31
], False)
sketch7.addConstraint([
    Sketcher.Constraint("Tangent", 0, 2, 1, 1),
    Sketcher.Constraint("Tangent", 1, 2, 2, 1),
    Sketcher.Constraint("Tangent", 2, 2, 3, 1),
    Sketcher.Constraint("Tangent", 3, 2, 0, 1),
    Sketcher.Constraint("Tangent", 4, 2, 5, 1),
    Sketcher.Constraint("Tangent", 5, 2, 6, 1),
    Sketcher.Constraint("Tangent", 6, 2, 7, 1),
    Sketcher.Constraint("Tangent", 7, 2, 4, 1),
    Sketcher.Constraint("Tangent", 8, 2, 9, 1),
    Sketcher.Constraint("Tangent", 9, 2, 10, 1),
    Sketcher.Constraint("Tangent", 10, 2, 11, 1),
    Sketcher.Constraint("Tangent", 11, 2, 8, 1),
    Sketcher.Constraint("Tangent", 12, 2, 13, 1),
    Sketcher.Constraint("Tangent", 13, 2, 14, 1),
    Sketcher.Constraint("Tangent", 14, 2, 15, 1),
    Sketcher.Constraint("Tangent", 15, 2, 12, 1),
    Sketcher.Constraint("Tangent", 16, 2, 17, 1),
    Sketcher.Constraint("Tangent", 17, 2, 18, 1),
    Sketcher.Constraint("Tangent", 18, 2, 19, 1),
    Sketcher.Constraint("Tangent", 19, 2, 16, 1),
    Sketcher.Constraint("Tangent", 20, 2, 21, 1),
    Sketcher.Constraint("Tangent", 21, 2, 22, 1),
    Sketcher.Constraint("Tangent", 22, 2, 23, 1),
    Sketcher.Constraint("Tangent", 23, 2, 20, 1),
    Sketcher.Constraint("Tangent", 24, 2, 25, 1),
    Sketcher.Constraint("Tangent", 25, 2, 26, 1),
    Sketcher.Constraint("Tangent", 26, 2, 27, 1),
    Sketcher.Constraint("Tangent", 27, 2, 24, 1),
    Sketcher.Constraint("Tangent", 28, 2, 29, 1),
    Sketcher.Constraint("Tangent", 29, 2, 30, 1),
    Sketcher.Constraint("Tangent", 30, 2, 31, 1),
    Sketcher.Constraint("Tangent", 31, 2, 28, 1),
    Sketcher.Constraint("Equal", 1, 3),
    Sketcher.Constraint("Equal", 3, 5),
    Sketcher.Constraint("Equal", 5, 7),
    Sketcher.Constraint("Equal", 7, 9),
    Sketcher.Constraint("Equal", 9, 11),
    Sketcher.Constraint("Equal", 11, 13),
    Sketcher.Constraint("Equal", 13, 15),
    Sketcher.Constraint("Equal", 15, 17),
    Sketcher.Constraint("Equal", 17, 19),
    Sketcher.Constraint("Equal", 19, 21),
    Sketcher.Constraint("Equal", 21, 23),
    Sketcher.Constraint("Equal", 23, 25),
    Sketcher.Constraint("Equal", 25, 27),
    Sketcher.Constraint("Equal", 27, 29),
    Sketcher.Constraint("Equal", 29, 31),
    Sketcher.Constraint("Parallel", 2, 4),
    Sketcher.Constraint("Parallel", 6, 8),
    Sketcher.Constraint("Parallel", 10, 12),
    Sketcher.Constraint("Parallel", 14, 16),
    Sketcher.Constraint("Parallel", 18, 20),
    Sketcher.Constraint("Parallel", 22, 24),
    Sketcher.Constraint("Parallel", 26, 28),
    Sketcher.Constraint("Horizontal", 1, 3, 5, 3),
    Sketcher.Constraint("Horizontal", 3, 3, 7, 3),
    Sketcher.Constraint("Horizontal", 5, 3, 9, 3),
    Sketcher.Constraint("Horizontal", 7, 3, 11, 3),
    Sketcher.Constraint("Horizontal", 9, 3, 13, 3),
    Sketcher.Constraint("Horizontal", 11, 3, 15, 3),
    Sketcher.Constraint("Horizontal", 13, 3, 17, 3),
    Sketcher.Constraint("Horizontal", 15, 3, 19, 3),
    Sketcher.Constraint("Horizontal", 17, 3, 21, 3),
    Sketcher.Constraint("Horizontal", 19, 3, 23, 3),
    Sketcher.Constraint("Horizontal", 21, 3, 25, 3),
    Sketcher.Constraint("Horizontal", 23, 3, 27, 3),
    Sketcher.Constraint("Horizontal", 25, 3, 29, 3),
    Sketcher.Constraint("Horizontal", 27, 3, 31, 3),
    Sketcher.Constraint("Radius", 1, Q("1 mm")),
    Sketcher.Constraint("DistanceX", 1, 3, 3, 3, Q("11 mm")),
    Sketcher.Constraint("DistanceY", 1, 3, 3, 3, Q("13 mm")),
    Sketcher.Constraint("DistanceX", 1, 3, 5, 3, Q("6 mm")),
    Sketcher.Constraint("DistanceX", 5, 3, 9, 3, Q("6 mm")),
    Sketcher.Constraint("DistanceX", 9, 3, 13, 3, Q("6 mm")),
    Sketcher.Constraint("DistanceX", 13, 3, 17, 3, Q("6 mm")),
    Sketcher.Constraint("DistanceX", 17, 3, 21, 3, Q("6 mm")),
    Sketcher.Constraint("DistanceX", 21, 3, 25, 3, Q("6 mm")),
    Sketcher.Constraint("DistanceX", 25, 3, 29, 3, Q("6 mm")),
    Sketcher.Constraint("DistanceY", -1, 1, 1, 3, Q("19.7 mm")),
    Sketcher.Constraint("DistanceX", -1, 1, 1, 3, Q("11.05 mm")),
])
sketch7.setExpression("Constraints[68]", "Params.sketch7_radius")
pocket2 = body2.newObject("PartDesign::Pocket", "Pocket001")
pocket2.Profile = sketch7
pocket2.setExpression("Length", "Params.pocket2_length")

# Sketch on XY plane
sketch8 = body2.newObject("Sketcher::SketchObject", "Sketch007")
sketch8.AttachmentSupport = (doc.getObject("XY_Plane001"), [""])
sketch8.MapMode = "FlatFace"
sketch8.AttachmentOffset = App.Placement(V(0, 0, 7), App.Rotation())
sketch8.addGeometry([
    Part.Circle(V(4, 4, 0), V(0, 0, 1), 1.7),
    Part.Circle(V(86, 34, 0), V(0, 0, 1), 1.7),
], False)
sketch8.addConstraint([
    Sketcher.Constraint("Equal", 0, 1),
    Sketcher.Constraint("Diameter", 0, Q("3.4 mm")),
    Sketcher.Constraint("DistanceX", -1, 1, 0, 3, Q("4 mm")),
    Sketcher.Constraint("DistanceY", -1, 1, 0, 3, Q("4 mm")),
    Sketcher.Constraint("DistanceX", -1, 1, 1, 3, Q("86 mm")),
    Sketcher.Constraint("DistanceY", -1, 1, 1, 3, Q("34 mm")),
])
sketch8.setExpression("Constraints[1]", "Params.sketch8_diameter")
pocket3 = body2.newObject("PartDesign::Pocket", "Pocket002")
pocket3.Profile = sketch8
pocket3.Type = "ThroughAll"

doc.recompute()
